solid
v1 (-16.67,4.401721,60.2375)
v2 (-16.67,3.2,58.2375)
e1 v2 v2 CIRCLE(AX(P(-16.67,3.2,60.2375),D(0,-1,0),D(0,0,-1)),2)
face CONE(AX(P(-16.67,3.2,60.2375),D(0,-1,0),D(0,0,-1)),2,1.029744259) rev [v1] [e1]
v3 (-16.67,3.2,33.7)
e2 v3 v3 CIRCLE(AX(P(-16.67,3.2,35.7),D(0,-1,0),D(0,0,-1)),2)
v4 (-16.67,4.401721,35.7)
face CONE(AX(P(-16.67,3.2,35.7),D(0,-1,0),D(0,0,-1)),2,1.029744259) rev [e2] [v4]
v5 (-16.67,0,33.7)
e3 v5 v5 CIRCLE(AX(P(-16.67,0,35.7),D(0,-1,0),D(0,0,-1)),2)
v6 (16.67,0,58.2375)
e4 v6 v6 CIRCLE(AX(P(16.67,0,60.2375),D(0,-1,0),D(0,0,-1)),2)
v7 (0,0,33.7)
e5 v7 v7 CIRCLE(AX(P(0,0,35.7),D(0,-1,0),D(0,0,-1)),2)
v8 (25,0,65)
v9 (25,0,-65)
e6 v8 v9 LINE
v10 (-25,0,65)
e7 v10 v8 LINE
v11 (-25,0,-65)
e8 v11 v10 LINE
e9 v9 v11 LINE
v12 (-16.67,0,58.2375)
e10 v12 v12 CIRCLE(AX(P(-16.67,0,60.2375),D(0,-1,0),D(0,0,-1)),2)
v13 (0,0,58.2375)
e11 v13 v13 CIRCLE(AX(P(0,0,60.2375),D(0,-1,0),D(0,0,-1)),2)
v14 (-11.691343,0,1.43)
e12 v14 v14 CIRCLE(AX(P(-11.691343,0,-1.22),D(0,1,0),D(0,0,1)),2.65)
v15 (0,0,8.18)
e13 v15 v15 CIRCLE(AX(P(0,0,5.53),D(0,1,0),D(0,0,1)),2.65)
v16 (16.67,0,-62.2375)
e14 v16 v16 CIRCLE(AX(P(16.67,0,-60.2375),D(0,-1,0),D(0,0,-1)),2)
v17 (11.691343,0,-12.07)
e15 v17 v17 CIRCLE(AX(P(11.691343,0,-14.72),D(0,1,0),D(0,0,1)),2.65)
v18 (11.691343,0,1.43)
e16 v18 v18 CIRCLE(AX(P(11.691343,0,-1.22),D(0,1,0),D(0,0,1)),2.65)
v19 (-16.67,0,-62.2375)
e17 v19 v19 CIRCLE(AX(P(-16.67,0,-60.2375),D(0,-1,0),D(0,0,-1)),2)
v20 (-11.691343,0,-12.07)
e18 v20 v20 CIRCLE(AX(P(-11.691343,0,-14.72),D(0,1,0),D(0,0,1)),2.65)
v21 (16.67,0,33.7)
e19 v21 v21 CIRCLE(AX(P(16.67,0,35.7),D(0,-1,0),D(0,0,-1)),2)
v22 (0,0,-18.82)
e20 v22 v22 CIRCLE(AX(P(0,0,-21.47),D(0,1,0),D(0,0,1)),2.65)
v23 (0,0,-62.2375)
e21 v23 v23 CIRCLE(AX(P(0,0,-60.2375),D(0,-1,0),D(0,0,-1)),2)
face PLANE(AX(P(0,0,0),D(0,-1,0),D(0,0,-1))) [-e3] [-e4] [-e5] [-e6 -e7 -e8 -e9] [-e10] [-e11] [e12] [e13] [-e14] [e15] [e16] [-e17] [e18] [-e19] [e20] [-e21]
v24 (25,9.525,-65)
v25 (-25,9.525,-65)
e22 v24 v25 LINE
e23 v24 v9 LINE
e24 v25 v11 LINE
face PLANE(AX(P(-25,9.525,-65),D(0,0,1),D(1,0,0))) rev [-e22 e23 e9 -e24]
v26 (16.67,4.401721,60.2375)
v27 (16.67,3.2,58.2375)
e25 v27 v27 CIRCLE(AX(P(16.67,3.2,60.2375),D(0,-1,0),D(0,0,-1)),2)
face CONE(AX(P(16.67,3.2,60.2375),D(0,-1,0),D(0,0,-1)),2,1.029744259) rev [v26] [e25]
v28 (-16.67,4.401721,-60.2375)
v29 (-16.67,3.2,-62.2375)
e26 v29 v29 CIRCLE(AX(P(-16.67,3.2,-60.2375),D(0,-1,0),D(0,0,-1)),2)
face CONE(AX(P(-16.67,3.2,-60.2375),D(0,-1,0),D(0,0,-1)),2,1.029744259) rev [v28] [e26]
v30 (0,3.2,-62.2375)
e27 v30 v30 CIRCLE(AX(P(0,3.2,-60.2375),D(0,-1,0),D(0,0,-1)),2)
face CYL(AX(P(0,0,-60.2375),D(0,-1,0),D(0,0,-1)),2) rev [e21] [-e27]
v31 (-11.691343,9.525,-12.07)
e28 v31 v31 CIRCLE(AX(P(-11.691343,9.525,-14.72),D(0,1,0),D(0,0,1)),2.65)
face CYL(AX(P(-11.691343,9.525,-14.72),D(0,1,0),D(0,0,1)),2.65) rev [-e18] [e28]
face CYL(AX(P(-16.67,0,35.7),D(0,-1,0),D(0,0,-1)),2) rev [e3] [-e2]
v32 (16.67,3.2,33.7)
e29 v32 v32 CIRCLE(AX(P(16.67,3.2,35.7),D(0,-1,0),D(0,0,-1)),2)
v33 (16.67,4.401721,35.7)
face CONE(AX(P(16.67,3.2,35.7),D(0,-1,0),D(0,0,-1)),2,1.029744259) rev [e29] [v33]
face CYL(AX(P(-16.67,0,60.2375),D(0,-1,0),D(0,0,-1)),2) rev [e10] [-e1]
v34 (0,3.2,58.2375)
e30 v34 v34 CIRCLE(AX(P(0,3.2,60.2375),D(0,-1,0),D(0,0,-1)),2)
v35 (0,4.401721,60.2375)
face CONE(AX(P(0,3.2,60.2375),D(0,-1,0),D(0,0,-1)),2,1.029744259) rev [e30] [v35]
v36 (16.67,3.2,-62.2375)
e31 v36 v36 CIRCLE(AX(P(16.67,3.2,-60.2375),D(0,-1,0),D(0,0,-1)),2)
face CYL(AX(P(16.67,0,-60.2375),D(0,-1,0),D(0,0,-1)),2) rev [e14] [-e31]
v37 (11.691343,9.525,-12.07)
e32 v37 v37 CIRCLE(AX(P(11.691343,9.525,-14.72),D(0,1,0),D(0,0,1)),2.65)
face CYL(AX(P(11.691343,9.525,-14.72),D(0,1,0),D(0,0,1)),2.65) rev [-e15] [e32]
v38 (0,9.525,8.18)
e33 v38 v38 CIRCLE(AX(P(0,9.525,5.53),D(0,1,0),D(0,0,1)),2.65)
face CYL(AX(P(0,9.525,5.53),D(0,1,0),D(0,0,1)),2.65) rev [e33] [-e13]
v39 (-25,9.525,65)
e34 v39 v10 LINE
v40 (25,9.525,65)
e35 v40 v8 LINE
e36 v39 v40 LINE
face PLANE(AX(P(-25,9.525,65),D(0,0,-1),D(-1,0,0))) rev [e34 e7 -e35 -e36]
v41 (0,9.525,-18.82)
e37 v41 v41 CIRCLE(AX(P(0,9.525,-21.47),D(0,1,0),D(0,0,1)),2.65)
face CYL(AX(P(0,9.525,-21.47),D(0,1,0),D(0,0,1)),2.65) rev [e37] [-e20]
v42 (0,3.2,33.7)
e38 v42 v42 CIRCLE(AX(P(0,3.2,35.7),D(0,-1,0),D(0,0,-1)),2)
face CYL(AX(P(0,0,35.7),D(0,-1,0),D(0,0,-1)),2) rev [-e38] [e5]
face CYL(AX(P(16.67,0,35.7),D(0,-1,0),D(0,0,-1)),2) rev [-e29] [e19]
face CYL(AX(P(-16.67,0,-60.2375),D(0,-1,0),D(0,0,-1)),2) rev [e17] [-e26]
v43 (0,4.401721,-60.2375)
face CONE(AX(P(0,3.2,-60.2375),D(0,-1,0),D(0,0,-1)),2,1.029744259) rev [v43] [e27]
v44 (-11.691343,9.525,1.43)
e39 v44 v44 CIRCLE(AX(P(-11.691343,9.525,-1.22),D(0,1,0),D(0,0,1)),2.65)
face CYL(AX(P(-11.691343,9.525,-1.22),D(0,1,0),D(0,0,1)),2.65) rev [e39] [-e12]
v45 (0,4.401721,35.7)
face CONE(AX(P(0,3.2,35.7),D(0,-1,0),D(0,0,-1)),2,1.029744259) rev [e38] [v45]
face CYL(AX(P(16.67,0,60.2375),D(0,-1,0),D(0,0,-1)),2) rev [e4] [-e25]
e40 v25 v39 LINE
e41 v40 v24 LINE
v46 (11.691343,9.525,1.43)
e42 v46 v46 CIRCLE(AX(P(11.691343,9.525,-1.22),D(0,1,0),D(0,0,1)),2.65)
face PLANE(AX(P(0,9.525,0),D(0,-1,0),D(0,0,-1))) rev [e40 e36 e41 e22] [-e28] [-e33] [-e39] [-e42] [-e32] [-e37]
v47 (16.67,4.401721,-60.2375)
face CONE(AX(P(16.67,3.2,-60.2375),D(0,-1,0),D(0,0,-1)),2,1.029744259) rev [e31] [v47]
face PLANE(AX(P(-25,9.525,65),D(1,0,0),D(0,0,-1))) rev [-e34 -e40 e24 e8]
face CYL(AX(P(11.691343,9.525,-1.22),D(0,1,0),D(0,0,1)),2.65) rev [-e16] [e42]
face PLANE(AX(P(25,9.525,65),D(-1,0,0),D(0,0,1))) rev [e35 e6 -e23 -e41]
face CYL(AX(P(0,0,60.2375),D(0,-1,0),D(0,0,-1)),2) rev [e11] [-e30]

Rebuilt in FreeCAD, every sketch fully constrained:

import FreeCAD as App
import Part
import Sketcher

V = App.Vector


def add_polygon(sketch, points):
    """Adds a closed chain of lines whose ends are joined by coincident constraints."""
    first, n = sketch.GeometryCount, len(points)
    for a, b in zip(points, points[1:] + points[:1]):
        sketch.addGeometry(Part.LineSegment(App.Vector(*a, 0), App.Vector(*b, 0)), False)
    for i in range(n):
        sketch.addConstraint(Sketcher.Constraint("Coincident", first + i, 2, first + (i + 1) % n, 1))

doc = App.newDocument("Part")
body = doc.addObject("PartDesign::Body", "Body")

# Sketch on XZ plane
sketch1 = body.newObject("Sketcher::SketchObject", "Sketch")
sketch1.AttachmentSupport = (doc.getObject("XZ_Plane"), [""])
sketch1.MapMode = "FlatFace"
add_polygon(sketch1, [(-25, -65), (-25, 65), (25, 65), (25, -65)])  # lines 0-3
sketch1.addConstraint([
    Sketcher.Constraint("Vertical", 0),
    Sketcher.Constraint("Horizontal", 1),
    Sketcher.Constraint("Vertical", 2),
    Sketcher.Constraint("Horizontal", 3),
    Sketcher.Constraint("Symmetric", 0, 2, 2, 2, -1, 1),
    Sketcher.Constraint("DistanceX", 1, 1, 1, 2, 50.0),
    Sketcher.Constraint("DistanceY", 0, 1, 0, 2, 130.0),
])
pad1 = body.newObject("PartDesign::Pad", "Pad")
pad1.Profile = sketch1
pad1.Length = 9.525
pad1.Reversed = True

# Sketch on XZ plane
sketch2 = body.newObject("Sketcher::SketchObject", "Sketch001")
sketch2.AttachmentSupport = (doc.getObject("XZ_Plane"), [""])
sketch2.MapMode = "FlatFace"
sketch2.addGeometry([
    Part.Circle(V(-16.67, 60.2375, 0), V(0, 0, 1), 2),  # 0
    Part.Circle(V(-16.67, -60.2375, 0), V(0, 0, 1), 2),  # 1
    Part.Circle(V(0, -60.2375, 0), V(0, 0, 1), 2),  # 2
    Part.Circle(V(16.67, -60.2375, 0), V(0, 0, 1), 2),  # 3
    Part.Circle(V(16.67, 35.7, 0), V(0, 0, 1), 2),  # 4
    Part.Circle(V(0, 35.7, 0), V(0, 0, 1), 2),  # 5
    Part.Circle(V(-16.67, 35.7, 0), V(0, 0, 1), 2),  # 6
    Part.Circle(V(16.67, 60.2375, 0), V(0, 0, 1), 2),  # 7
    Part.Circle(V(0, 60.2375, 0), V(0, 0, 1), 2),  # 8
], False)
sketch2.addConstraint([
    Sketcher.Constraint("Equal", 0, 1),
    Sketcher.Constraint("Equal", 1, 2),
    Sketcher.Constraint("Equal", 2, 3),
    Sketcher.Constraint("Equal", 3, 4),
    Sketcher.Constraint("Equal", 4, 5),
    Sketcher.Constraint("Equal", 5, 6),
    Sketcher.Constraint("Equal", 6, 7),
    Sketcher.Constraint("Equal", 7, 8),
    Sketcher.Constraint("Symmetric", 0, 3, 3, 3, -1, 1),
    Sketcher.Constraint("Symmetric", 1, 3, 7, 3, -1, 1),
    Sketcher.Constraint("Symmetric", 2, 3, 8, 3, -1, 1),
    Sketcher.Constraint("Symmetric", 1, 3, 3, 3, -2),
    Sketcher.Constraint("Symmetric", 4, 3, 6, 3, -2),
    Sketcher.Constraint("PointOnObject", 2, 3, -2),
    Sketcher.Constraint("PointOnObject", 5, 3, -2),
    Sketcher.Constraint("Horizontal", 1, 3, 2, 3),
    Sketcher.Constraint("Horizontal", 4, 3, 5, 3),
    Sketcher.Constraint("Vertical", 3, 3, 4, 3),
    Sketcher.Constraint("Diameter", 0, 4.0),
    Sketcher.Constraint("DistanceY", -1, 1, 4, 3, 35.7),
    Sketcher.Constraint("DistanceX", 0, 3, -1, 1, 16.67),
    Sketcher.Constraint("DistanceY", 1, 3, 0, 3, 120.475),
])
doc.recompute()
hole = body.newObject("PartDesign::Hole", "Hole")
hole.Profile = sketch2
hole.ThreadType = "None"
hole.Diameter = 4
hole.DepthType = "Dimension"
hole.Depth = 3.2
hole.DrillPoint = "Angled"
hole.DrillPointAngle = 118

# Sketch on XZ plane
sketch3 = body.newObject("Sketcher::SketchObject", "Sketch002")
sketch3.AttachmentSupport = (doc.getObject("XZ_Plane"), [""])
sketch3.MapMode = "FlatFace"
sketch3.AttachmentOffset = App.Placement(V(0, 0, -9.525), App.Rotation())
sketch3.addGeometry([
    Part.Circle(V(-11.691343, -14.72, 0), V(0, 0, 1), 2.65),  # 0
    Part.Circle(V(0, -21.47, 0), V(0, 0, 1), 2.65),  # 1
    Part.Circle(V(11.691343, -14.72, 0), V(0, 0, 1), 2.65),  # 2
    Part.Circle(V(11.691343, -1.22, 0), V(0, 0, 1), 2.65),  # 3
    Part.Circle(V(0, 5.53, 0), V(0, 0, 1), 2.65),  # 4
    Part.Circle(V(-11.691343, -1.22, 0), V(0, 0, 1), 2.65),  # 5
], False)
sketch3.addConstraint([
    Sketcher.Constraint("Equal", 0, 1),
    Sketcher.Constraint("Equal", 1, 2),
    Sketcher.Constraint("Equal", 2, 3),
    Sketcher.Constraint("Equal", 3, 4),
    Sketcher.Constraint("Equal", 4, 5),
    Sketcher.Constraint("Symmetric", 0, 3, 2, 3, -2),
    Sketcher.Constraint("Symmetric", 3, 3, 5, 3, -2),
    Sketcher.Constraint("PointOnObject", 1, 3, -2),
    Sketcher.Constraint("PointOnObject", 4, 3, -2),
    Sketcher.Constraint("Vertical", 2, 3, 3, 3),
    Sketcher.Constraint("Diameter", 0, 5.3),
    Sketcher.Constraint("DistanceY", 1, 3, 4, 3, 27.0),
    Sketcher.Constraint("DistanceY", 2, 3, 3, 3, 13.5),
    Sketcher.Constraint("DistanceY", 0, 3, -1, 1, 14.72),
    Sketcher.Constraint("DistanceY", 1, 3, -1, 1, 21.47),
    Sketcher.Constraint("DistanceX", 0, 3, -1, 1, 11.691343),
])
doc.recompute()
hole2 = body.newObject("PartDesign::Hole", "Hole001")
hole2.Profile = sketch3
hole2.ThreadType = "None"
hole2.Diameter = 5.3
hole2.DepthType = "ThroughAll"
hole2.Reversed = True

doc.recompute()
